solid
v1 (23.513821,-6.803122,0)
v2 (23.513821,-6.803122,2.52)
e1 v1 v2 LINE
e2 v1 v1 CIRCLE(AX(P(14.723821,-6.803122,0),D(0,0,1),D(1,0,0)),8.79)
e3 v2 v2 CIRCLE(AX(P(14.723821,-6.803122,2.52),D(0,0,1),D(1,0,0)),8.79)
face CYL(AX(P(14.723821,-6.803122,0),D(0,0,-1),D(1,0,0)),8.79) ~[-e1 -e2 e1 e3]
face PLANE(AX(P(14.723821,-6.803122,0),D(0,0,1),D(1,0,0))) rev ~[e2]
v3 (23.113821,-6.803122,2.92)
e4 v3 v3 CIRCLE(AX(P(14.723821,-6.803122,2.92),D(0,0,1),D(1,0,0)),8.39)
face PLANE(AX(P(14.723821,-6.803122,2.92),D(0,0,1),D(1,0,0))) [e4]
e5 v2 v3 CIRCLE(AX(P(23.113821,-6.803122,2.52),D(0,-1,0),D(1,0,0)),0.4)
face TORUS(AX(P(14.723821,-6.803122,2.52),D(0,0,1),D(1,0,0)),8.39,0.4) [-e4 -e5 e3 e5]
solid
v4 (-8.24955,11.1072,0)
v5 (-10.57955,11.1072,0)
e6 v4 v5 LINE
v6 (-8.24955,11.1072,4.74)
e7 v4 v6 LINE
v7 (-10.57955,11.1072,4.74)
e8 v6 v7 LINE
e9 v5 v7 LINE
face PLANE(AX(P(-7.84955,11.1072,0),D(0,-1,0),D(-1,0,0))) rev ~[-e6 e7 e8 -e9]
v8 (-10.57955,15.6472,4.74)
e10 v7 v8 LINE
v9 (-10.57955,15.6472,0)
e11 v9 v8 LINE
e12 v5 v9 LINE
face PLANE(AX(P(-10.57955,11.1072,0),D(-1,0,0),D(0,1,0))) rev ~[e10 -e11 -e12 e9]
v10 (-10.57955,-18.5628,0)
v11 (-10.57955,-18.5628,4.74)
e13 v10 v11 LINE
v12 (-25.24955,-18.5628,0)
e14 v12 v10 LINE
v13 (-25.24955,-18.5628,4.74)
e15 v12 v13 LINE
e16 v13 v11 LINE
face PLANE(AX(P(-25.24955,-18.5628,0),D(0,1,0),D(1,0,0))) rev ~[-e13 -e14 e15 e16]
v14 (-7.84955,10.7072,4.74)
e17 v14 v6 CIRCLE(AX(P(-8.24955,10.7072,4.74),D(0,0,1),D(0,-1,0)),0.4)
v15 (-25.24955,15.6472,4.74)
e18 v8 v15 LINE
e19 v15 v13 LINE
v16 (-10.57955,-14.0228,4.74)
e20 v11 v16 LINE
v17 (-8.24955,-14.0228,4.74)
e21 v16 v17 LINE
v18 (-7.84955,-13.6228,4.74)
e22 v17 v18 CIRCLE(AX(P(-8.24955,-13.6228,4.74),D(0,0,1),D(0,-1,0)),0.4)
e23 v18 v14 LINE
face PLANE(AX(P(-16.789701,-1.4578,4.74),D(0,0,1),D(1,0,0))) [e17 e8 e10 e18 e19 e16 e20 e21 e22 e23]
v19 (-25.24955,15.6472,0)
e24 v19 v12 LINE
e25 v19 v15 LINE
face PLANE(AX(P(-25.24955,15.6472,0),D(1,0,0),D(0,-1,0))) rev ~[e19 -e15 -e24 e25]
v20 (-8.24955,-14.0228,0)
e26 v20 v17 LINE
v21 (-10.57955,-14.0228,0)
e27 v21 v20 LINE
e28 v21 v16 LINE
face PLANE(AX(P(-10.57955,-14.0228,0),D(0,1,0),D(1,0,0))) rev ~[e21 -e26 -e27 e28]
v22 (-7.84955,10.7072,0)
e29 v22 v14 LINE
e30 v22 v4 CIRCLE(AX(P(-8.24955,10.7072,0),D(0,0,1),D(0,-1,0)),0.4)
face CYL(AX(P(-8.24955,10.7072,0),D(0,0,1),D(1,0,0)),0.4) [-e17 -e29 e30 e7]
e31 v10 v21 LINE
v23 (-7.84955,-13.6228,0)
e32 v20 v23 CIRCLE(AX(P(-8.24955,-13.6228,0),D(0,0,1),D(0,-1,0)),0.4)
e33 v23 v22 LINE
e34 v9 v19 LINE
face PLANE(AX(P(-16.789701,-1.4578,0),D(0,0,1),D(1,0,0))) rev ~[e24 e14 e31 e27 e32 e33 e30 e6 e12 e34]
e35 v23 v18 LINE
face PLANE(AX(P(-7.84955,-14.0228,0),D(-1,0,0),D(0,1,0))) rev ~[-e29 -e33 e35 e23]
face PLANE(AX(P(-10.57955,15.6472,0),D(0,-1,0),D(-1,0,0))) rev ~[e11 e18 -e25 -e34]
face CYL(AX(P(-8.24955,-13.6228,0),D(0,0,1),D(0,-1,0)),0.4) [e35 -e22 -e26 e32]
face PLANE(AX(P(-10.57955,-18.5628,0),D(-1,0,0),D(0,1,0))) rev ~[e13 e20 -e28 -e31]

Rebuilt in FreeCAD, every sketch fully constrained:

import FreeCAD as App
import Part
import Sketcher
Q = App.Units.Quantity


def edges_at(feature, points):
    """Names of the edges that pass closest to the given points."""
    edges = feature.Shape.Edges
    near = lambda p: min(range(len(edges)), key=lambda i: edges[i].distToShape(Part.Vertex(*p))[0])
    return sorted({f"Edge{near(p) + 1}" for p in points})

doc = App.newDocument("Part")
body = doc.addObject("PartDesign::Body", "Body")

sketch1 = body.newObject("Sketcher::SketchObject", "Sketch")
sketch1.AttachmentSupport = (doc.getObject("XY_Plane"), [""])
sketch1.MapMode = "FlatFace"
sketch1.addGeometry([
    Part.LineSegment(App.Vector(-10.6, 15.6, 0), App.Vector(-25.2, 15.6, 0)),
    Part.LineSegment(App.Vector(-25.2, 15.6, 0), App.Vector(-25.2, -18.6, 0)),
    Part.LineSegment(App.Vector(-25.2, -18.6, 0), App.Vector(-10.6, -18.6, 0)),
    Part.LineSegment(App.Vector(-10.6, -18.6, 0), App.Vector(-10.6, -14, 0)),
    Part.LineSegment(App.Vector(-10.6, -14, 0), App.Vector(-7.8, -14, 0)),
    Part.LineSegment(App.Vector(-7.8, -14, 0), App.Vector(-7.8, 11.1, 0)),
    Part.LineSegment(App.Vector(-7.8, 11.1, 0), App.Vector(-10.6, 11.1, 0)),
    Part.LineSegment(App.Vector(-10.6, 11.1, 0), App.Vector(-10.6, 15.6, 0)),
], False)
sketch1.addConstraint([
    Sketcher.Constraint("Coincident", 0, 2, 1, 1),
    Sketcher.Constraint("Coincident", 1, 2, 2, 1),
    Sketcher.Constraint("Coincident", 2, 2, 3, 1),
    Sketcher.Constraint("Coincident", 3, 2, 4, 1),
    Sketcher.Constraint("Coincident", 4, 2, 5, 1),
    Sketcher.Constraint("Coincident", 5, 2, 6, 1),
    Sketcher.Constraint("Coincident", 6, 2, 7, 1),
    Sketcher.Constraint("Coincident", 7, 2, 0, 1),
    Sketcher.Constraint("Horizontal", 0),
    Sketcher.Constraint("Vertical", 1),
    Sketcher.Constraint("Horizontal", 2),
    Sketcher.Constraint("Vertical", 3),
    Sketcher.Constraint("Horizontal", 4),
    Sketcher.Constraint("Vertical", 5),
    Sketcher.Constraint("Horizontal", 6),
    Sketcher.Constraint("Vertical", 7),
    Sketcher.Constraint("Vertical", 3, 2, 6, 2),
    Sketcher.Constraint("Equal", 3, 7),
    Sketcher.Constraint("DistanceX", 0, 2, 0, 1, Q("14.67 mm")),
    Sketcher.Constraint("DistanceX", 4, 1, 4, 2, Q("2.73 mm")),
    Sketcher.Constraint("DistanceY", 1, 2, 1, 1, Q("34.21 mm")),
    Sketcher.Constraint("DistanceY", 3, 1, 3, 2, Q("4.54 mm")),
    Sketcher.Constraint("DistanceY", -1, 1, 0, 2, Q("15.6472 mm")),
    Sketcher.Constraint("DistanceX", 0, 2, -1, 1, Q("25.24955 mm")),
])
pad1 = body.newObject("PartDesign::Pad", "Pad")
pad1.Profile = sketch1
pad1.Length = 4.74
doc.recompute()

fillet = body.newObject("PartDesign::Fillet", "Fillet")
fillet.Base = (pad1, edges_at(pad1, [(-7.85, -14.023, 2.37), (-7.85, 11.107, 2.37)]))
fillet.Radius = 0.4
body2 = doc.addObject("PartDesign::Body", "Body001")

sketch2 = body2.newObject("Sketcher::SketchObject", "Sketch001")
sketch2.AttachmentSupport = (doc.getObject("XY_Plane001"), [""])
sketch2.MapMode = "FlatFace"
sketch2.addGeometry(Part.Circle(App.Vector(15, -7, 0), App.Vector(0, 0, 1), 9), False)
sketch2.addConstraint([
    Sketcher.Constraint("Diameter", 0, Q("17.58 mm")),
    Sketcher.Constraint("DistanceX", -1, 1, 0, 3, Q("14.723821 mm")),
    Sketcher.Constraint("DistanceY", 0, 3, -1, 1, Q("6.803122 mm")),
])
pad2 = body2.newObject("PartDesign::Pad", "Pad001")
pad2.Profile = sketch2
pad2.Length = 2.92
doc.recompute()

fillet2 = body2.newObject("PartDesign::Fillet", "Fillet001")
fillet2.Base = (pad2, edges_at(pad2, [(5.934, -6.803, 2.92)]))
fillet2.Radius = 0.4

doc.recompute()
